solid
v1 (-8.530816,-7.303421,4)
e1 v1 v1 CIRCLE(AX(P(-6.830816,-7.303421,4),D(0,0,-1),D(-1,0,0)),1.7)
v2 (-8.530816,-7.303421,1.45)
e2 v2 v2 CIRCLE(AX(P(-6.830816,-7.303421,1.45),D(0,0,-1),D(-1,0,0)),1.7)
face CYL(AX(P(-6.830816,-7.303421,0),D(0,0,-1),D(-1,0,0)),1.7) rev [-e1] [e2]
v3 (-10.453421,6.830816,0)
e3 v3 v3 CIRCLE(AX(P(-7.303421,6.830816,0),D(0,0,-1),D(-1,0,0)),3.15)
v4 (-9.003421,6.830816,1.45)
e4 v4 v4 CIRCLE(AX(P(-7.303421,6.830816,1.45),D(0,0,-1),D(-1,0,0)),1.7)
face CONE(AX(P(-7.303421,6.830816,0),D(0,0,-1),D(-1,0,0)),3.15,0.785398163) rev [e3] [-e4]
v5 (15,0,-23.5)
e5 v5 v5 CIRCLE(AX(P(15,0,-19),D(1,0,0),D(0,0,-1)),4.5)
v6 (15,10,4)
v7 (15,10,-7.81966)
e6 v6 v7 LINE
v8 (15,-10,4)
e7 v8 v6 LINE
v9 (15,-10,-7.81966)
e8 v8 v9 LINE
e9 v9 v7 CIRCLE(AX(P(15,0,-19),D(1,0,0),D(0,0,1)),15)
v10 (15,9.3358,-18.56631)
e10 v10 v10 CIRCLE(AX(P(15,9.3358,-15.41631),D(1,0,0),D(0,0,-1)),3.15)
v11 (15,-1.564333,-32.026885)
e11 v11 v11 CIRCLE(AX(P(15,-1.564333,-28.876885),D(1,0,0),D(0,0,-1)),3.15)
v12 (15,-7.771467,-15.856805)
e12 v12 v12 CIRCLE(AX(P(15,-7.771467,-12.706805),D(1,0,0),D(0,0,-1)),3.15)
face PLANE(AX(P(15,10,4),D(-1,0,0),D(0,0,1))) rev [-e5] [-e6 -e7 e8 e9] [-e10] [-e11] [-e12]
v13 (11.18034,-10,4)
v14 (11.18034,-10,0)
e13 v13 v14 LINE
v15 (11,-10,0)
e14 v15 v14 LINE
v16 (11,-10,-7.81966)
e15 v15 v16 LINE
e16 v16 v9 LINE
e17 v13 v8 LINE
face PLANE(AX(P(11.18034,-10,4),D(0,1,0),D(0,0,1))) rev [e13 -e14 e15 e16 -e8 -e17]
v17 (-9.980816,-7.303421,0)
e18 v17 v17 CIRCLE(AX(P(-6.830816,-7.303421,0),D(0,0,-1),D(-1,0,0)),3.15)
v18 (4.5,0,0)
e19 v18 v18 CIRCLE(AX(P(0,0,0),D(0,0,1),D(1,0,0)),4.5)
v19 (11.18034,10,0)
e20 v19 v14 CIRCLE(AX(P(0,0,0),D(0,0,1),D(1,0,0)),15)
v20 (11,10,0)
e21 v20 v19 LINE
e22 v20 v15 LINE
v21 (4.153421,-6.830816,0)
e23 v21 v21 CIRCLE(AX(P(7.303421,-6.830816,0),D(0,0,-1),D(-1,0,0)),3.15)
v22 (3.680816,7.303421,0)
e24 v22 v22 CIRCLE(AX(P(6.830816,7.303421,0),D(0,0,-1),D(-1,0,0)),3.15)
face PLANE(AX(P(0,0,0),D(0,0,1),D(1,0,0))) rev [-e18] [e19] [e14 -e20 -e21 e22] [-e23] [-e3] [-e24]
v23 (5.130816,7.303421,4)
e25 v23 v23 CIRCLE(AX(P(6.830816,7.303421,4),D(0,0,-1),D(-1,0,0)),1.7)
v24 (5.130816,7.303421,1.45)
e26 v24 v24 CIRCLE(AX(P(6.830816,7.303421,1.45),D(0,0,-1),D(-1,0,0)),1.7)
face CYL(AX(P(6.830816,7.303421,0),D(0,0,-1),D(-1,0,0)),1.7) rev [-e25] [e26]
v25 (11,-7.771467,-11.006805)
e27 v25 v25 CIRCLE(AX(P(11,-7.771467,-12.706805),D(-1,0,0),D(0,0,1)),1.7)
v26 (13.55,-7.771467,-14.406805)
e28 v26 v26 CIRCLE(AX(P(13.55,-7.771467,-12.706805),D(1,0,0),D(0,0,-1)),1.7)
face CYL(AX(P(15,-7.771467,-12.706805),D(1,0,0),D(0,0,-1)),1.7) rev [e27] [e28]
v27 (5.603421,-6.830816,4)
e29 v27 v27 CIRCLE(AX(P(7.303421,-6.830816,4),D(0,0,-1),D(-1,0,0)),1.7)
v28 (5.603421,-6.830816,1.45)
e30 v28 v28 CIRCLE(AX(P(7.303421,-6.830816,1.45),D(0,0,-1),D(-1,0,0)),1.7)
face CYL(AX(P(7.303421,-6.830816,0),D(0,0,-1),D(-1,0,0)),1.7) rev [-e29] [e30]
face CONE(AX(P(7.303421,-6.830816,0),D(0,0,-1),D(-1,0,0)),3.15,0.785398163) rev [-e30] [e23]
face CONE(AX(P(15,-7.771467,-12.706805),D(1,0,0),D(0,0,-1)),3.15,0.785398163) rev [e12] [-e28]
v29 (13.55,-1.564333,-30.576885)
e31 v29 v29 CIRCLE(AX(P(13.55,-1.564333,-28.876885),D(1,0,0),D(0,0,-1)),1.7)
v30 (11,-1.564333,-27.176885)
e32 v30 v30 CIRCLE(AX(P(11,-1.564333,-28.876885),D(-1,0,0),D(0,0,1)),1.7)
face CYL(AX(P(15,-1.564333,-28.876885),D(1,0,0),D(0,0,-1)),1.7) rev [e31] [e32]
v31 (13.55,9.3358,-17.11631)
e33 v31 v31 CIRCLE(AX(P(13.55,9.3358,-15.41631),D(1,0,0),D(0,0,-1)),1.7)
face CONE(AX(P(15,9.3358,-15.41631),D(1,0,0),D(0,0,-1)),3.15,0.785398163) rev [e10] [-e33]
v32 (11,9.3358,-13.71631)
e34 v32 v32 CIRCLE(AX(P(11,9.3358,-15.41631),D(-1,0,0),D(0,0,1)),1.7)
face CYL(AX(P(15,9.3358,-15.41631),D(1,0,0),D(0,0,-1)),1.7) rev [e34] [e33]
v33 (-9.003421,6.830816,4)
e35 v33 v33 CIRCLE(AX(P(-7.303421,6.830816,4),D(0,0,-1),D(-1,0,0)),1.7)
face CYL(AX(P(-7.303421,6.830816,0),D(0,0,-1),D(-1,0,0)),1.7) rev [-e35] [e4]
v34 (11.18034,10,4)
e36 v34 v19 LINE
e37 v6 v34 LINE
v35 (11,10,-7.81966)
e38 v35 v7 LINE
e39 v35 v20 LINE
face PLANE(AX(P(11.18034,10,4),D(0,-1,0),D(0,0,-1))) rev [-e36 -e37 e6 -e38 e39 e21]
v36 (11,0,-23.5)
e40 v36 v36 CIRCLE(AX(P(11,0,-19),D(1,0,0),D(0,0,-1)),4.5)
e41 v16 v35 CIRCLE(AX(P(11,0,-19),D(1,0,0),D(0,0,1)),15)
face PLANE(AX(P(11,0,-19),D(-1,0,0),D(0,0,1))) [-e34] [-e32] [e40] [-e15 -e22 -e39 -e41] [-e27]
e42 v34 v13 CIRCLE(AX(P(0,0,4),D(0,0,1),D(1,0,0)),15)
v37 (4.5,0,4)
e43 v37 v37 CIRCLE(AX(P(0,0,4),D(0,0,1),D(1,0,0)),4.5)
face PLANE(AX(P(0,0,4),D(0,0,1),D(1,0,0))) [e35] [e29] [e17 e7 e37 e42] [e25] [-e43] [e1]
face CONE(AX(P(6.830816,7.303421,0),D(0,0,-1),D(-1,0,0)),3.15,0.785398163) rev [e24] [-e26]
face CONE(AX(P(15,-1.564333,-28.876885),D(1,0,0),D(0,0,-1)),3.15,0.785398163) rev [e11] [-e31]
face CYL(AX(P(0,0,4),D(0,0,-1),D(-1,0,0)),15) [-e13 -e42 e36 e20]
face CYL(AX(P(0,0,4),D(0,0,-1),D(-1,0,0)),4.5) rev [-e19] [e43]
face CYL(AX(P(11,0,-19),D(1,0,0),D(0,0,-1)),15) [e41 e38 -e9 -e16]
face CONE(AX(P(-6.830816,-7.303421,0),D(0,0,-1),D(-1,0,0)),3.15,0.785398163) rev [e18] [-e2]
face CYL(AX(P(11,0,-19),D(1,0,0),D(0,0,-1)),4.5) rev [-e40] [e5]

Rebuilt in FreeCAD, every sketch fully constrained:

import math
import FreeCAD as App
import Part
import Sketcher
from FreeCAD import Vector
Q = App.Units.Quantity

doc = App.newDocument("Part")
body = doc.addObject("PartDesign::Body", "Body")

sketch1 = body.newObject("Sketcher::SketchObject", "Sketch")
sketch1.AttachmentSupport = (doc.getObject("XY_Plane"), [""])
sketch1.MapMode = "FlatFace"
sketch1.addGeometry([
    Part.LineSegment(Vector(15, 10, 0), Vector(11.2, 10, 0)),
    Part.ArcOfCircle(Part.Circle(Vector(0, 0, 0), Vector(0, 0, 1), 15), math.radians(42), math.radians(318)),
    Part.LineSegment(Vector(11.2, -10, 0), Vector(15, -10, 0)),
    Part.LineSegment(Vector(15, -10, 0), Vector(15, 10, 0)),
    Part.Circle(Vector(7.3, -6.8, 0), Vector(0, 0, 1), 1.5),
    Part.Circle(Vector(0, 0, 0), Vector(0, 0, 1), 4.5),
    Part.Circle(Vector(-6.8, -7.3, 0), Vector(0, 0, 1), 1.5),
    Part.Circle(Vector(6.8, 7.3, 0), Vector(0, 0, 1), 1.5),
    Part.Circle(Vector(-7.3, 6.8, 0), Vector(0, 0, 1), 1.5),
], False)
sketch1.addConstraint([
    Sketcher.Constraint("Coincident", 0, 2, 1, 1),
    Sketcher.Constraint("Coincident", 1, 2, 2, 1),
    Sketcher.Constraint("Coincident", 2, 2, 3, 1),
    Sketcher.Constraint("Coincident", 3, 2, 0, 1),
    Sketcher.Constraint("Horizontal", 0),
    Sketcher.Constraint("Horizontal", 2),
    Sketcher.Constraint("Vertical", 3),
    Sketcher.Constraint("Coincident", 1, 3, -1, 1),
    Sketcher.Constraint("Coincident", 5, 3, -1, 1),
    Sketcher.Constraint("Equal", 4, 6),
    Sketcher.Constraint("Equal", 6, 7),
    Sketcher.Constraint("Equal", 7, 8),
    Sketcher.Constraint("Symmetric", 6, 3, 7, 3, -1, 1),
    Sketcher.Constraint("Symmetric", 4, 3, 8, 3, -1, 1),
    Sketcher.Constraint("Vertical", 0, 2, 1, 2),
    Sketcher.Constraint("Diameter", 4, Q("3 mm")),
    Sketcher.Constraint("Diameter", 5, Q("9 mm")),
    Sketcher.Constraint("Radius", 1, Q("15 mm")),
    Sketcher.Constraint("DistanceY", 3, 1, 3, 2, Q("20 mm")),
    Sketcher.Constraint("DistanceX", -1, 1, 2, 2, Q("15 mm")),
    Sketcher.Constraint("DistanceX", -1, 1, 4, 3, Q("7.303421 mm")),
    Sketcher.Constraint("DistanceY", 6, 3, -1, 1, Q("7.303421 mm")),
    Sketcher.Constraint("DistanceY", 4, 3, -1, 1, Q("6.830816 mm")),
    Sketcher.Constraint("DistanceX", 6, 3, -1, 1, Q("6.830816 mm")),
])
pad1 = body.newObject("PartDesign::Pad", "Pad")
pad1.Profile = sketch1
pad1.Length = 4

sketch2 = body.newObject("Sketcher::SketchObject", "Sketch001")
sketch2.AttachmentSupport = (doc.getObject("YZ_Plane"), [""])
sketch2.MapMode = "FlatFace"
sketch2.AttachmentOffset = App.Placement(Vector(0, 0, 15), App.Rotation())
sketch2.addGeometry([
    Part.LineSegment(Vector(10, -7.8, 0), Vector(10, 0, 0)),
    Part.LineSegment(Vector(10, 0, 0), Vector(-10, 0, 0)),
    Part.LineSegment(Vector(-10, 0, 0), Vector(-10, -7.8, 0)),
    Part.ArcOfCircle(Part.Circle(Vector(0, -19, 0), Vector(0, 0, 1), 15), math.radians(132), math.radians(408)),
    Part.Circle(Vector(-1.6, -28.9, 0), Vector(0, 0, 1), 1.5),
    Part.Circle(Vector(-7.8, -12.7, 0), Vector(0, 0, 1), 1.5),
    Part.Circle(Vector(0, -19, 0), Vector(0, 0, 1), 4.5),
    Part.Circle(Vector(9.3, -15.4, 0), Vector(0, 0, 1), 1.5),
], False)
sketch2.addConstraint([
    Sketcher.Constraint("Coincident", 0, 2, 1, 1),
    Sketcher.Constraint("Coincident", 1, 2, 2, 1),
    Sketcher.Constraint("Coincident", 2, 2, 3, 1),
    Sketcher.Constraint("Coincident", 3, 2, 0, 1),
    Sketcher.Constraint("Vertical", 0),
    Sketcher.Constraint("Horizontal", 1),
    Sketcher.Constraint("Vertical", 2),
    Sketcher.Constraint("Coincident", 6, 3, 3, 3),
    Sketcher.Constraint("Equal", 4, 5),
    Sketcher.Constraint("Equal", 5, 7),
    Sketcher.Constraint("Symmetric", 0, 2, 1, 2, -1, 1),
    Sketcher.Constraint("PointOnObject", 3, 3, -2),
    Sketcher.Constraint("Diameter", 6, Q("9 mm")),
    Sketcher.Constraint("Radius", 3, Q("15 mm")),
    Sketcher.Constraint("DistanceX", 1, 2, 1, 1, Q("20 mm")),
    Sketcher.Constraint("DistanceY", 3, 3, -1, 1, Q("19 mm")),
    Sketcher.Constraint("Diameter", 4, Q("3.000166 mm")),
    Sketcher.Constraint("DistanceX", -1, 1, 7, 3, Q("9.3358 mm")),
    Sketcher.Constraint("DistanceY", 7, 3, -1, 1, Q("15.41631 mm")),
    Sketcher.Constraint("DistanceY", 4, 3, 5, 3, Q("16.17008 mm")),
    Sketcher.Constraint("DistanceX", 4, 3, -1, 1, Q("1.564333 mm")),
    Sketcher.Constraint("DistanceY", 4, 3, -1, 1, Q("28.876885 mm")),
    Sketcher.Constraint("DistanceX", 5, 3, -1, 1, Q("7.771467 mm")),
])
pad2 = body.newObject("PartDesign::Pad", "Pad001")
pad2.Profile = sketch2
pad2.Length = 4
pad2.Reversed = True

sketch3 = body.newObject("Sketcher::SketchObject", "Sketch002")
sketch3.AttachmentSupport = (doc.getObject("XY_Plane"), [""])
sketch3.MapMode = "FlatFace"
sketch3.addGeometry([
    Part.Circle(Vector(6.8, 7.3, 0), Vector(0, 0, 1), 1.7),
    Part.Circle(Vector(-7.3, 6.8, 0), Vector(0, 0, 1), 1.7),
    Part.Circle(Vector(-6.8, -7.3, 0), Vector(0, 0, 1), 1.7),
    Part.Circle(Vector(7.3, -6.8, 0), Vector(0, 0, 1), 1.7),
], False)
sketch3.addConstraint([
    Sketcher.Constraint("Equal", 0, 1),
    Sketcher.Constraint("Equal", 1, 2),
    Sketcher.Constraint("Equal", 2, 3),
    Sketcher.Constraint("Symmetric", 0, 3, 2, 3, -1, 1),
    Sketcher.Constraint("Symmetric", 1, 3, 3, 3, -1, 1),
    Sketcher.Constraint("Diameter", 0, Q("3.4 mm")),
    Sketcher.Constraint("DistanceY", -1, 1, 0, 3, Q("7.303421 mm")),
    Sketcher.Constraint("DistanceX", 1, 3, -1, 1, Q("7.303421 mm")),
    Sketcher.Constraint("DistanceX", -1, 1, 0, 3, Q("6.830816 mm")),
    Sketcher.Constraint("DistanceY", -1, 1, 1, 3, Q("6.830816 mm")),
])
doc.recompute()
hole = body.newObject("PartDesign::Hole", "Hole")
hole.Profile = sketch3
hole.ThreadType = "None"
hole.Diameter = 3.4
hole.DepthType = "ThroughAll"
hole.HoleCutType = "Countersink"
hole.HoleCutDiameter = 6.3
hole.HoleCutCountersinkAngle = 90
hole.Reversed = True

sketch4 = body.newObject("Sketcher::SketchObject", "Sketch003")
sketch4.AttachmentSupport = (doc.getObject("YZ_Plane"), [""])
sketch4.MapMode = "FlatFace"
sketch4.AttachmentOffset = App.Placement(Vector(0, 0, 15), App.Rotation())
sketch4.addGeometry([
    Part.Circle(Vector(9.3, -15.4, 0), Vector(0, 0, 1), 1.7),
    Part.Circle(Vector(-1.6, -28.9, 0), Vector(0, 0, 1), 1.7),
    Part.Circle(Vector(-7.8, -12.7, 0), Vector(0, 0, 1), 1.7),
], False)
sketch4.addConstraint([
    Sketcher.Constraint("Equal", 0, 1),
    Sketcher.Constraint("Equal", 1, 2),
    Sketcher.Constraint("Diameter", 0, Q("3.4 mm")),
    Sketcher.Constraint("DistanceX", -1, 1, 0, 3, Q("9.3358 mm")),
    Sketcher.Constraint("DistanceY", 0, 3, -1, 1, Q("15.41631 mm")),
    Sketcher.Constraint("DistanceY", 1, 3, 2, 3, Q("16.17008 mm")),
    Sketcher.Constraint("DistanceX", 1, 3, -1, 1, Q("1.564333 mm")),
    Sketcher.Constraint("DistanceY", 1, 3, -1, 1, Q("28.876885 mm")),
    Sketcher.Constraint("DistanceX", 2, 3, -1, 1, Q("7.771467 mm")),
])
doc.recompute()
hole2 = body.newObject("PartDesign::Hole", "Hole001")
hole2.Profile = sketch4
hole2.ThreadType = "None"
hole2.Diameter = 3.4
hole2.DepthType = "ThroughAll"
hole2.HoleCutType = "Countersink"
hole2.HoleCutDiameter = 6.3
hole2.HoleCutCountersinkAngle = 90

doc.recompute()
